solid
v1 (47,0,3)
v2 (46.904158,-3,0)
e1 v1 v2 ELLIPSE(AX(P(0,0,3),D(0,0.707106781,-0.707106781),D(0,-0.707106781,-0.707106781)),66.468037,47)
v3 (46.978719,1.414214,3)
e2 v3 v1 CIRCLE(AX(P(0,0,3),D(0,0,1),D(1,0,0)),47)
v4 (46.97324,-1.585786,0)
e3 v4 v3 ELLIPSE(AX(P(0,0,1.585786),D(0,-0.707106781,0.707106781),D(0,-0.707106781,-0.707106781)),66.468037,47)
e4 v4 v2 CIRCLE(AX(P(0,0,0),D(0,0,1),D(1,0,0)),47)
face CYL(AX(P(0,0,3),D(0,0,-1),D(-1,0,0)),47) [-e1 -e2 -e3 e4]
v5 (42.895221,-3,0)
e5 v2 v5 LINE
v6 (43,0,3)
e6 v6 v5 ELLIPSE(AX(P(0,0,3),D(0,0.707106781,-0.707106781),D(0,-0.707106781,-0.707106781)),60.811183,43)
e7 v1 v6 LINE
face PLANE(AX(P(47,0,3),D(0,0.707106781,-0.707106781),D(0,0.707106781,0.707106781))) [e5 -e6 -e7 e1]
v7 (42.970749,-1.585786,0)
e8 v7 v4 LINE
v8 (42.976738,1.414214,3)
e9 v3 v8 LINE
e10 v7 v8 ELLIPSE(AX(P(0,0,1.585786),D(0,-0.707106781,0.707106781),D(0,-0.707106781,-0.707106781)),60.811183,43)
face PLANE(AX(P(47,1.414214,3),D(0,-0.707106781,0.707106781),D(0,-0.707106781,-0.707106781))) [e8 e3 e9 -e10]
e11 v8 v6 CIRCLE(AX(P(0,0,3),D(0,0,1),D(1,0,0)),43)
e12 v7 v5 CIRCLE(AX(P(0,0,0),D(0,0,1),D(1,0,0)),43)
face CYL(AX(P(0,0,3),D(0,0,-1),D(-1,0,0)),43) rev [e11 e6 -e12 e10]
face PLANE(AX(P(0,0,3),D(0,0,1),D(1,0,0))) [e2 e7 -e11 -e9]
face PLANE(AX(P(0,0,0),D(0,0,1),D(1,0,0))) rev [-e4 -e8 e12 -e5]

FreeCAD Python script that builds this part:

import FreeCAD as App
import Part
import Sketcher

V = App.Vector
Q = App.Units.Quantity


def add_polygon(sketch, points):
    """Adds a closed chain of lines whose ends are joined by coincident constraints."""
    first, n = sketch.GeometryCount, len(points)
    for a, b in zip(points, points[1:] + points[:1]):
        sketch.addGeometry(Part.LineSegment(App.Vector(*a, 0), App.Vector(*b, 0)), False)
    for i in range(n):
        sketch.addConstraint(Sketcher.Constraint("Coincident", first + i, 2, first + (i + 1) % n, 1))

doc = App.newDocument("Part")
body = doc.addObject("PartDesign::Body", "Body")

# Sketch on XY plane
sketch1 = body.newObject("Sketcher::SketchObject", "Sketch")
sketch1.AttachmentSupport = (doc.getObject("XY_Plane"), [""])
sketch1.MapMode = "FlatFace"
sketch1.addGeometry(Part.Circle(V(0, 0, 0), V(0, 0, 1), 47), False)
sketch1.addGeometry(Part.Circle(V(0, 0, 0), V(0, 0, 1), 43), False)
sketch1.addConstraint(Sketcher.Constraint("Coincident", 0, 3, -1, 1))
sketch1.addConstraint(Sketcher.Constraint("Coincident", 1, 3, -1, 1))
sketch1.addConstraint(Sketcher.Constraint("Diameter", 0, Q("94 mm")))
sketch1.addConstraint(Sketcher.Constraint("Diameter", 1, Q("86 mm")))
pad1 = body.newObject("PartDesign::Pad", "Pad")
pad1.Profile = sketch1
pad1.Length = 3

# Sketch on YZ plane
sketch2 = body.newObject("Sketcher::SketchObject", "Sketch001")
sketch2.AttachmentSupport = (doc.getObject("YZ_Plane"), [""])
sketch2.MapMode = "FlatFace"
add_polygon(sketch2, [(0, 3), (-3, 0), (-2.3, -0.7), (1.4, 3)])  # lines 0-3
sketch2.addConstraint(Sketcher.Constraint("Horizontal", 3))
sketch2.addConstraint(Sketcher.Constraint("PointOnObject", 0, 2, -1))
sketch2.addConstraint(Sketcher.Constraint("PointOnObject", 3, 2, -2))
sketch2.addConstraint(Sketcher.Constraint("Perpendicular", 0, 1))
sketch2.addConstraint(Sketcher.Constraint("Perpendicular", 1, 2))
sketch2.addConstraint(Sketcher.Constraint("Angle", 0, Q("-135 deg")))
sketch2.addConstraint(Sketcher.Constraint("Distance", 1, Q("1 mm")))
sketch2.addConstraint(Sketcher.Constraint("DistanceX", 0, 2, -1, 1, Q("3 mm")))
pocket1 = body.newObject("PartDesign::Pocket", "Pocket")
pocket1.Profile = sketch2
pocket1.Type = "ThroughAll"
pocket1.Reversed = True

doc.recompute()
